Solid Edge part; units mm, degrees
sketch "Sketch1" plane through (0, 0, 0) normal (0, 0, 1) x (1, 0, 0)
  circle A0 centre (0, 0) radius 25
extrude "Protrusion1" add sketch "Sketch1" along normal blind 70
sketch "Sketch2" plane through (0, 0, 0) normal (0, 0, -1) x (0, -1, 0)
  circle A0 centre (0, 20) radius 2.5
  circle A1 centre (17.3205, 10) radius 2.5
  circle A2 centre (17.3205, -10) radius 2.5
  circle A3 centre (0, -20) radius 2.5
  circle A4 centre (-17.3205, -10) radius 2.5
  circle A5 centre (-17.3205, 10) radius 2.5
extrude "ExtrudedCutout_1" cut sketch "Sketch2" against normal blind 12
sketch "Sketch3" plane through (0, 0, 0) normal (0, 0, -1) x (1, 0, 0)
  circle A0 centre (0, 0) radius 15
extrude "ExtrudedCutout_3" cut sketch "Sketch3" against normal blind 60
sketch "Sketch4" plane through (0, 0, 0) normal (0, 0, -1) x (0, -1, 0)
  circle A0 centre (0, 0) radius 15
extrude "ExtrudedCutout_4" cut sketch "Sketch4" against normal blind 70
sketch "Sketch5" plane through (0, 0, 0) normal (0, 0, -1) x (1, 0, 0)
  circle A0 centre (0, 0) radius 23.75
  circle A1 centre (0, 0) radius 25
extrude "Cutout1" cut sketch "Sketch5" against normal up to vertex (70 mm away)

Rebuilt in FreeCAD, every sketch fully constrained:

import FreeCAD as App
import Part
import Sketcher
from FreeCAD import Vector

doc = App.newDocument("Part")
body = doc.addObject("PartDesign::Body", "Body")

sketch1 = body.newObject("Sketcher::SketchObject", "Sketch")
sketch1.AttachmentSupport = (doc.getObject("XY_Plane"), [""])
sketch1.MapMode = "FlatFace"
sketch1.addGeometry(Part.Circle(Vector(0, 0, 0), Vector(0, 0, 1), 25), False)
sketch1.addConstraint(Sketcher.Constraint("Coincident", 0, 3, -1, 1))
sketch1.addConstraint(Sketcher.Constraint("Diameter", 0, 50.0))
pad1 = body.newObject("PartDesign::Pad", "Pad")
pad1.Profile = sketch1
pad1.Length = 70

sketch2 = body.newObject("Sketcher::SketchObject", "Sketch001")
sketch2.AttachmentSupport = (doc.getObject("XY_Plane"), [""])
sketch2.MapMode = "FlatFace"
sketch2.addGeometry(Part.Circle(Vector(-20, 0, 0), Vector(0, 0, 1), 2.5), False)
sketch2.addGeometry(Part.Circle(Vector(-10, -17.3, 0), Vector(0, 0, 1), 2.5), False)
sketch2.addGeometry(Part.Circle(Vector(10, -17.3, 0), Vector(0, 0, 1), 2.5), False)
sketch2.addGeometry(Part.Circle(Vector(20, 0, 0), Vector(0, 0, 1), 2.5), False)
sketch2.addGeometry(Part.Circle(Vector(10, 17.3, 0), Vector(0, 0, 1), 2.5), False)
sketch2.addGeometry(Part.Circle(Vector(-10, 17.3, 0), Vector(0, 0, 1), 2.5), False)
sketch2.addConstraint(Sketcher.Constraint("Equal", 0, 1))
sketch2.addConstraint(Sketcher.Constraint("Equal", 1, 2))
sketch2.addConstraint(Sketcher.Constraint("Equal", 2, 3))
sketch2.addConstraint(Sketcher.Constraint("Equal", 3, 4))
sketch2.addConstraint(Sketcher.Constraint("Equal", 4, 5))
sketch2.addConstraint(Sketcher.Constraint("Symmetric", 0, 3, 3, 3, -1, 1))
sketch2.addConstraint(Sketcher.Constraint("Symmetric", 1, 3, 4, 3, -1, 1))
sketch2.addConstraint(Sketcher.Constraint("Symmetric", 2, 3, 5, 3, -1, 1))
sketch2.addConstraint(Sketcher.Constraint("Symmetric", 1, 3, 2, 3, -2))
sketch2.addConstraint(Sketcher.Constraint("PointOnObject", 0, 3, -1))
sketch2.addConstraint(Sketcher.Constraint("Diameter", 0, 5.0))
sketch2.addConstraint(Sketcher.Constraint("DistanceX", 0, 3, -1, 1, 20.0))
sketch2.addConstraint(Sketcher.Constraint("DistanceX", 1, 3, -1, 1, 10.0))
sketch2.addConstraint(Sketcher.Constraint("DistanceY", 2, 3, 4, 3, 34.641))
pocket1 = body.newObject("PartDesign::Pocket", "Pocket")
pocket1.Profile = sketch2
pocket1.Length = 12
pocket1.Reversed = True

sketch3 = body.newObject("Sketcher::SketchObject", "Sketch002")
sketch3.AttachmentSupport = (doc.getObject("XY_Plane"), [""])
sketch3.MapMode = "FlatFace"
sketch3.addGeometry(Part.Circle(Vector(0, 0, 0), Vector(0, 0, 1), 15), False)
sketch3.addConstraint(Sketcher.Constraint("Coincident", 0, 3, -1, 1))
sketch3.addConstraint(Sketcher.Constraint("Diameter", 0, 30.0))
pocket2 = body.newObject("PartDesign::Pocket", "Pocket001")
pocket2.Profile = sketch3
pocket2.Length = 60
pocket2.Reversed = True

sketch4 = body.newObject("Sketcher::SketchObject", "Sketch003")
sketch4.AttachmentSupport = (doc.getObject("XY_Plane"), [""])
sketch4.MapMode = "FlatFace"
sketch4.addGeometry(Part.Circle(Vector(0, 0, 0), Vector(0, 0, 1), 15), False)
sketch4.addConstraint(Sketcher.Constraint("Coincident", 0, 3, -1, 1))
sketch4.addConstraint(Sketcher.Constraint("Diameter", 0, 30.0))
pocket3 = body.newObject("PartDesign::Pocket", "Pocket002")
pocket3.Profile = sketch4
pocket3.Length = 70
pocket3.Reversed = True

sketch5 = body.newObject("Sketcher::SketchObject", "Sketch004")
sketch5.AttachmentSupport = (doc.getObject("XY_Plane"), [""])
sketch5.MapMode = "FlatFace"
sketch5.addGeometry(Part.Circle(Vector(0, 0, 0), Vector(0, 0, 1), 25), False)
sketch5.addGeometry(Part.Circle(Vector(0, 0, 0), Vector(0, 0, 1), 24), False)
sketch5.addConstraint(Sketcher.Constraint("Coincident", 0, 3, -1, 1))
sketch5.addConstraint(Sketcher.Constraint("Coincident", 1, 3, -1, 1))
sketch5.addConstraint(Sketcher.Constraint("Diameter", 0, 50.0))
sketch5.addConstraint(Sketcher.Constraint("Diameter", 1, 47.5))
pocket4 = body.newObject("PartDesign::Pocket", "Pocket003")
pocket4.Profile = sketch5
pocket4.Length = 70
pocket4.Reversed = True

doc.recompute()
